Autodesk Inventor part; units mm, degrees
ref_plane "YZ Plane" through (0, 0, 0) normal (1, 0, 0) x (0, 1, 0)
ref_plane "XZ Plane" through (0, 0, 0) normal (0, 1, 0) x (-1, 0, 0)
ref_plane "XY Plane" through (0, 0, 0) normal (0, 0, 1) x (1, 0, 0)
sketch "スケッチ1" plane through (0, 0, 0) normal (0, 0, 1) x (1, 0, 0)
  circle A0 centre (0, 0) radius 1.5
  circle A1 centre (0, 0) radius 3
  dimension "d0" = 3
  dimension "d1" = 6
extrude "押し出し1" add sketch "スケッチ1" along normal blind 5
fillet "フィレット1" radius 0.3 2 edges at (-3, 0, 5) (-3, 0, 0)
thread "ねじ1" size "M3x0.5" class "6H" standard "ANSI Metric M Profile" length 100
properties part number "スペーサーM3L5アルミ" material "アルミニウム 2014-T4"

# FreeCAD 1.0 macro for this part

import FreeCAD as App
import Part
import Sketcher


def edges_at(feature, points):
    """Names of the edges that pass closest to the given points."""
    edges = feature.Shape.Edges
    near = lambda p: min(range(len(edges)), key=lambda i: edges[i].distToShape(Part.Vertex(*p))[0])
    return sorted({f"Edge{near(p) + 1}" for p in points})

doc = App.newDocument("Part")
body = doc.addObject("PartDesign::Body", "Body")

# Sketch on XY plane
sketch1 = doc.addObject("Sketcher::SketchObject", "Sketch")
body.addObject(sketch1)
sketch1.AttachmentSupport = (doc.XY_Plane, [""])
sketch1.MapMode = "FlatFace"
sketch1.addGeometry(Part.Circle(App.Vector(0, 0, 0), App.Vector(0, 0, 1), 3), False)
sketch1.addGeometry(Part.Circle(App.Vector(0, 0, 0), App.Vector(0, 0, 1), 1.5), False)
sketch1.addConstraint(Sketcher.Constraint("Coincident", 0, 3, -1, 1))
sketch1.addConstraint(Sketcher.Constraint("Coincident", 1, 3, -1, 1))
sketch1.addConstraint(Sketcher.Constraint("Diameter", 0, 6.0))
sketch1.addConstraint(Sketcher.Constraint("Diameter", 1, 3.0))
pad1 = doc.addObject("PartDesign::Pad", "Pad")
body.addObject(pad1)
pad1.Profile = sketch1
pad1.Length = 5
doc.recompute()

fillet = doc.addObject("PartDesign::Fillet", "Fillet")
body.addObject(fillet)
fillet.Base = (pad1, edges_at(pad1, [(-3, 0, 5), (-3, 0, 0)]))
fillet.Radius = 0.3

doc.recompute()
